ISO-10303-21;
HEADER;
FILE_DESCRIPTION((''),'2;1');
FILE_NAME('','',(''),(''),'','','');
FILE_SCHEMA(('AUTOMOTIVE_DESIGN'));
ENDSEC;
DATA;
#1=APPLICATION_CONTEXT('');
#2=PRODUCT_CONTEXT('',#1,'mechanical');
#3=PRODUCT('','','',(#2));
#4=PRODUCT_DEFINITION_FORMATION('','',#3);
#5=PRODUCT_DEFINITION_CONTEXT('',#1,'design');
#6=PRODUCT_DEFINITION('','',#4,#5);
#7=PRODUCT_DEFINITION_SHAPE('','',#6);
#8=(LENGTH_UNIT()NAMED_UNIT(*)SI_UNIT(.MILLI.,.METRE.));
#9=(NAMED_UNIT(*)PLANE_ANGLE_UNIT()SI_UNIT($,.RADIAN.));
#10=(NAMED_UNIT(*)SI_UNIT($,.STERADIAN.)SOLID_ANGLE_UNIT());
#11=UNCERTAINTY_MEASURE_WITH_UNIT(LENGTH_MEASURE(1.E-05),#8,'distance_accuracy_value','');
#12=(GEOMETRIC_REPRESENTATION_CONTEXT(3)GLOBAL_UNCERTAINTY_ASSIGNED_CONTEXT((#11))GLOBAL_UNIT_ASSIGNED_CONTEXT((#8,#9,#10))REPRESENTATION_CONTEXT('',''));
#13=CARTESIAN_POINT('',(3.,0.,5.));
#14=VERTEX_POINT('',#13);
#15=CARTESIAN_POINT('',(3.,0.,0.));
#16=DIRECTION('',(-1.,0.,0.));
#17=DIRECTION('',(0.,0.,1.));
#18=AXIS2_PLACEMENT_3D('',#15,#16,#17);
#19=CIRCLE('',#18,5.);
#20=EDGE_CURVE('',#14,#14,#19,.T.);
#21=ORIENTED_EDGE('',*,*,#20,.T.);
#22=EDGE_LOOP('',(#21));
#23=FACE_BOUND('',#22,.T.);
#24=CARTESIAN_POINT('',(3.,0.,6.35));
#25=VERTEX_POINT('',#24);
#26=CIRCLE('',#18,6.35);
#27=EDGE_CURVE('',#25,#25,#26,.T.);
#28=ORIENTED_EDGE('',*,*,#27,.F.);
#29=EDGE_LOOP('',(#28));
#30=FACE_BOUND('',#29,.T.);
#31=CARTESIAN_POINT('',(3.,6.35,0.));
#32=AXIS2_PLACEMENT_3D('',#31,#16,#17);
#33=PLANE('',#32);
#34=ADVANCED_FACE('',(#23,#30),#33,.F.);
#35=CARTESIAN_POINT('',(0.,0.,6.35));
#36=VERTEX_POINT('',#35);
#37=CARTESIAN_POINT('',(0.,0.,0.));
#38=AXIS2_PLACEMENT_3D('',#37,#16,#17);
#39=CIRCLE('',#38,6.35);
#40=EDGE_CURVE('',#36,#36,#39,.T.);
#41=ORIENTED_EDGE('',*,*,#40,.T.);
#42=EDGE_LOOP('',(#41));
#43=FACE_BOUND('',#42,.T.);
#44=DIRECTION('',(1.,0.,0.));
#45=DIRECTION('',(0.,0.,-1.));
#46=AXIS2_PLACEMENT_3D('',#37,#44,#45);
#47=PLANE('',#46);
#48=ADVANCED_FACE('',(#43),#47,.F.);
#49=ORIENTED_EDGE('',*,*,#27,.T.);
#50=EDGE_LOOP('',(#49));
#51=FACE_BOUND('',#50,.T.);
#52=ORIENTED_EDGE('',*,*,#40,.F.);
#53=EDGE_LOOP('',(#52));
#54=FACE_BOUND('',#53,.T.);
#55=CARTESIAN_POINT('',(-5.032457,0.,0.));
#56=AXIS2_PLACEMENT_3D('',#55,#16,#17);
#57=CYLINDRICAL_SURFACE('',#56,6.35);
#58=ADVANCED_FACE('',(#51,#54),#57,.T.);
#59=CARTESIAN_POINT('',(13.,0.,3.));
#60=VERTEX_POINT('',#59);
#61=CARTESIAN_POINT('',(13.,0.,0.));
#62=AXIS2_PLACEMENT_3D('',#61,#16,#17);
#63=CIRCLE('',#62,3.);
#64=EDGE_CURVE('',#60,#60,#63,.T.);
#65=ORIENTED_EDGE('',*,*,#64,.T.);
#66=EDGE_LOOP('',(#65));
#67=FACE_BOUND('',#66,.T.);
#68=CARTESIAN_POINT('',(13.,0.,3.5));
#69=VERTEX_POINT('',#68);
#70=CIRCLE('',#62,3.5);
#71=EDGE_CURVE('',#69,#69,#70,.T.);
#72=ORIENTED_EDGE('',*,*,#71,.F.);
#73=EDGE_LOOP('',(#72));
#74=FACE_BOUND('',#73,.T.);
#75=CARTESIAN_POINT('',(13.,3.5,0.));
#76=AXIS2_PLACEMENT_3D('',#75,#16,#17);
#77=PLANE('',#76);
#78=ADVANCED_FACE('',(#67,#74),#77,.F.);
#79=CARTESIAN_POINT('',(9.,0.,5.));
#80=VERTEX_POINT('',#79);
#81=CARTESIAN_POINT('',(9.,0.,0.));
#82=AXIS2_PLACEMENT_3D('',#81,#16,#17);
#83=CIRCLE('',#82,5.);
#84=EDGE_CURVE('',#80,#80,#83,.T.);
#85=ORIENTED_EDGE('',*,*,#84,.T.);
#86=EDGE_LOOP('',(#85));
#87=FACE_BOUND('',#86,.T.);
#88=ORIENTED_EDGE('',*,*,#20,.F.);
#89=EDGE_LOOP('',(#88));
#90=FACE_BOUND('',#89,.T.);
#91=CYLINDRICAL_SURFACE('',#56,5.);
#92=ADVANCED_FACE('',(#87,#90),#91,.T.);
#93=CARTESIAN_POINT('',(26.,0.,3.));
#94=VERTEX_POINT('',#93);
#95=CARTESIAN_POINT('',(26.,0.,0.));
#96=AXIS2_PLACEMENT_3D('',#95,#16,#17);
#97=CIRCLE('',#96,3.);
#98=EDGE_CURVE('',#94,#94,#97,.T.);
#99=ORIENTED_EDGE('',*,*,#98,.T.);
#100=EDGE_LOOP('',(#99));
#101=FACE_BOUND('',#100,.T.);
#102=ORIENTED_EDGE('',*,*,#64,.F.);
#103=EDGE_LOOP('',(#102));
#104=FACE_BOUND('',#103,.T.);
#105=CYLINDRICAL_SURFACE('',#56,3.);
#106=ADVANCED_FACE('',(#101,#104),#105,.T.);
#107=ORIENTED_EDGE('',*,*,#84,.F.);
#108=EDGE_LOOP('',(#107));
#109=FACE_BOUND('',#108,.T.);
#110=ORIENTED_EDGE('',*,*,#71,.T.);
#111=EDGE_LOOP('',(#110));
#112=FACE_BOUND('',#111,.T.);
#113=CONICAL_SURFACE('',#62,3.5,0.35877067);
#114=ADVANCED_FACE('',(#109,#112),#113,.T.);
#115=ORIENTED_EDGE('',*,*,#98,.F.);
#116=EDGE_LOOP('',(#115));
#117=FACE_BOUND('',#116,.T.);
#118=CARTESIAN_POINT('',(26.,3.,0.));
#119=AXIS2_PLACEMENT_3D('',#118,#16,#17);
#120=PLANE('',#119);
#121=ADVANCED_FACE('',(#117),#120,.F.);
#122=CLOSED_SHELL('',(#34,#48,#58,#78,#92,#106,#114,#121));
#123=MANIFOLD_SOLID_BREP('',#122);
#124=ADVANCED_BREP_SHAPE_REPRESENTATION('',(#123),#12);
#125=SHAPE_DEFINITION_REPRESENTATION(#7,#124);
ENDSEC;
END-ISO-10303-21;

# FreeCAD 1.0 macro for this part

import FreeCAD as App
import Part
import Sketcher

V = App.Vector


def add_polygon(sketch, points):
    """Adds a closed chain of lines whose ends are joined by coincident constraints."""
    first, n = sketch.GeometryCount, len(points)
    for a, b in zip(points, points[1:] + points[:1]):
        sketch.addGeometry(Part.LineSegment(App.Vector(*a, 0), App.Vector(*b, 0)), False)
    for i in range(n):
        sketch.addConstraint(Sketcher.Constraint("Coincident", first + i, 2, first + (i + 1) % n, 1))

doc = App.newDocument("Part")
body = doc.addObject("PartDesign::Body", "Body")

# Sketch on XY plane
sketch1 = body.newObject("Sketcher::SketchObject", "Sketch")
sketch1.AttachmentSupport = (doc.getObject("XY_Plane"), [""])
sketch1.MapMode = "FlatFace"
add_polygon(sketch1, [(0, 6.35), (0, 0), (26, 0), (26, 3), (13, 3), (13, 3.5), (9, 5), (3, 5), (3, 6.35)])  # lines 0-8
sketch1.addConstraint([
    Sketcher.Constraint("Vertical", 0),
    Sketcher.Constraint("Horizontal", 1),
    Sketcher.Constraint("Vertical", 2),
    Sketcher.Constraint("Horizontal", 3),
    Sketcher.Constraint("Vertical", 4),
    Sketcher.Constraint("Horizontal", 6),
    Sketcher.Constraint("Vertical", 7),
    Sketcher.Constraint("Horizontal", 8),
    Sketcher.Constraint("Coincident", 0, 2, -1, 1),
    Sketcher.Constraint("Equal", 8, 2),
    Sketcher.Constraint("DistanceX", 1, 1, 1, 2, 26.0),
    Sketcher.Constraint("DistanceX", 3, 2, 3, 1, 13.0),
    Sketcher.Constraint("DistanceX", 6, 2, 6, 1, 6.0),
    Sketcher.Constraint("DistanceX", 8, 2, 8, 1, 3.0),
    Sketcher.Constraint("DistanceY", 4, 1, 4, 2, 0.5),
    Sketcher.Constraint("DistanceY", -1, 1, 5, 2, 5.0),
    Sketcher.Constraint("DistanceY", 0, 2, 0, 1, 6.35),
])
revolution = body.newObject("PartDesign::Revolution", "Revolution")
revolution.Profile = sketch1
revolution.ReferenceAxis = (sketch1, ["H_Axis"])
revolution.Angle = 360

doc.recompute()
